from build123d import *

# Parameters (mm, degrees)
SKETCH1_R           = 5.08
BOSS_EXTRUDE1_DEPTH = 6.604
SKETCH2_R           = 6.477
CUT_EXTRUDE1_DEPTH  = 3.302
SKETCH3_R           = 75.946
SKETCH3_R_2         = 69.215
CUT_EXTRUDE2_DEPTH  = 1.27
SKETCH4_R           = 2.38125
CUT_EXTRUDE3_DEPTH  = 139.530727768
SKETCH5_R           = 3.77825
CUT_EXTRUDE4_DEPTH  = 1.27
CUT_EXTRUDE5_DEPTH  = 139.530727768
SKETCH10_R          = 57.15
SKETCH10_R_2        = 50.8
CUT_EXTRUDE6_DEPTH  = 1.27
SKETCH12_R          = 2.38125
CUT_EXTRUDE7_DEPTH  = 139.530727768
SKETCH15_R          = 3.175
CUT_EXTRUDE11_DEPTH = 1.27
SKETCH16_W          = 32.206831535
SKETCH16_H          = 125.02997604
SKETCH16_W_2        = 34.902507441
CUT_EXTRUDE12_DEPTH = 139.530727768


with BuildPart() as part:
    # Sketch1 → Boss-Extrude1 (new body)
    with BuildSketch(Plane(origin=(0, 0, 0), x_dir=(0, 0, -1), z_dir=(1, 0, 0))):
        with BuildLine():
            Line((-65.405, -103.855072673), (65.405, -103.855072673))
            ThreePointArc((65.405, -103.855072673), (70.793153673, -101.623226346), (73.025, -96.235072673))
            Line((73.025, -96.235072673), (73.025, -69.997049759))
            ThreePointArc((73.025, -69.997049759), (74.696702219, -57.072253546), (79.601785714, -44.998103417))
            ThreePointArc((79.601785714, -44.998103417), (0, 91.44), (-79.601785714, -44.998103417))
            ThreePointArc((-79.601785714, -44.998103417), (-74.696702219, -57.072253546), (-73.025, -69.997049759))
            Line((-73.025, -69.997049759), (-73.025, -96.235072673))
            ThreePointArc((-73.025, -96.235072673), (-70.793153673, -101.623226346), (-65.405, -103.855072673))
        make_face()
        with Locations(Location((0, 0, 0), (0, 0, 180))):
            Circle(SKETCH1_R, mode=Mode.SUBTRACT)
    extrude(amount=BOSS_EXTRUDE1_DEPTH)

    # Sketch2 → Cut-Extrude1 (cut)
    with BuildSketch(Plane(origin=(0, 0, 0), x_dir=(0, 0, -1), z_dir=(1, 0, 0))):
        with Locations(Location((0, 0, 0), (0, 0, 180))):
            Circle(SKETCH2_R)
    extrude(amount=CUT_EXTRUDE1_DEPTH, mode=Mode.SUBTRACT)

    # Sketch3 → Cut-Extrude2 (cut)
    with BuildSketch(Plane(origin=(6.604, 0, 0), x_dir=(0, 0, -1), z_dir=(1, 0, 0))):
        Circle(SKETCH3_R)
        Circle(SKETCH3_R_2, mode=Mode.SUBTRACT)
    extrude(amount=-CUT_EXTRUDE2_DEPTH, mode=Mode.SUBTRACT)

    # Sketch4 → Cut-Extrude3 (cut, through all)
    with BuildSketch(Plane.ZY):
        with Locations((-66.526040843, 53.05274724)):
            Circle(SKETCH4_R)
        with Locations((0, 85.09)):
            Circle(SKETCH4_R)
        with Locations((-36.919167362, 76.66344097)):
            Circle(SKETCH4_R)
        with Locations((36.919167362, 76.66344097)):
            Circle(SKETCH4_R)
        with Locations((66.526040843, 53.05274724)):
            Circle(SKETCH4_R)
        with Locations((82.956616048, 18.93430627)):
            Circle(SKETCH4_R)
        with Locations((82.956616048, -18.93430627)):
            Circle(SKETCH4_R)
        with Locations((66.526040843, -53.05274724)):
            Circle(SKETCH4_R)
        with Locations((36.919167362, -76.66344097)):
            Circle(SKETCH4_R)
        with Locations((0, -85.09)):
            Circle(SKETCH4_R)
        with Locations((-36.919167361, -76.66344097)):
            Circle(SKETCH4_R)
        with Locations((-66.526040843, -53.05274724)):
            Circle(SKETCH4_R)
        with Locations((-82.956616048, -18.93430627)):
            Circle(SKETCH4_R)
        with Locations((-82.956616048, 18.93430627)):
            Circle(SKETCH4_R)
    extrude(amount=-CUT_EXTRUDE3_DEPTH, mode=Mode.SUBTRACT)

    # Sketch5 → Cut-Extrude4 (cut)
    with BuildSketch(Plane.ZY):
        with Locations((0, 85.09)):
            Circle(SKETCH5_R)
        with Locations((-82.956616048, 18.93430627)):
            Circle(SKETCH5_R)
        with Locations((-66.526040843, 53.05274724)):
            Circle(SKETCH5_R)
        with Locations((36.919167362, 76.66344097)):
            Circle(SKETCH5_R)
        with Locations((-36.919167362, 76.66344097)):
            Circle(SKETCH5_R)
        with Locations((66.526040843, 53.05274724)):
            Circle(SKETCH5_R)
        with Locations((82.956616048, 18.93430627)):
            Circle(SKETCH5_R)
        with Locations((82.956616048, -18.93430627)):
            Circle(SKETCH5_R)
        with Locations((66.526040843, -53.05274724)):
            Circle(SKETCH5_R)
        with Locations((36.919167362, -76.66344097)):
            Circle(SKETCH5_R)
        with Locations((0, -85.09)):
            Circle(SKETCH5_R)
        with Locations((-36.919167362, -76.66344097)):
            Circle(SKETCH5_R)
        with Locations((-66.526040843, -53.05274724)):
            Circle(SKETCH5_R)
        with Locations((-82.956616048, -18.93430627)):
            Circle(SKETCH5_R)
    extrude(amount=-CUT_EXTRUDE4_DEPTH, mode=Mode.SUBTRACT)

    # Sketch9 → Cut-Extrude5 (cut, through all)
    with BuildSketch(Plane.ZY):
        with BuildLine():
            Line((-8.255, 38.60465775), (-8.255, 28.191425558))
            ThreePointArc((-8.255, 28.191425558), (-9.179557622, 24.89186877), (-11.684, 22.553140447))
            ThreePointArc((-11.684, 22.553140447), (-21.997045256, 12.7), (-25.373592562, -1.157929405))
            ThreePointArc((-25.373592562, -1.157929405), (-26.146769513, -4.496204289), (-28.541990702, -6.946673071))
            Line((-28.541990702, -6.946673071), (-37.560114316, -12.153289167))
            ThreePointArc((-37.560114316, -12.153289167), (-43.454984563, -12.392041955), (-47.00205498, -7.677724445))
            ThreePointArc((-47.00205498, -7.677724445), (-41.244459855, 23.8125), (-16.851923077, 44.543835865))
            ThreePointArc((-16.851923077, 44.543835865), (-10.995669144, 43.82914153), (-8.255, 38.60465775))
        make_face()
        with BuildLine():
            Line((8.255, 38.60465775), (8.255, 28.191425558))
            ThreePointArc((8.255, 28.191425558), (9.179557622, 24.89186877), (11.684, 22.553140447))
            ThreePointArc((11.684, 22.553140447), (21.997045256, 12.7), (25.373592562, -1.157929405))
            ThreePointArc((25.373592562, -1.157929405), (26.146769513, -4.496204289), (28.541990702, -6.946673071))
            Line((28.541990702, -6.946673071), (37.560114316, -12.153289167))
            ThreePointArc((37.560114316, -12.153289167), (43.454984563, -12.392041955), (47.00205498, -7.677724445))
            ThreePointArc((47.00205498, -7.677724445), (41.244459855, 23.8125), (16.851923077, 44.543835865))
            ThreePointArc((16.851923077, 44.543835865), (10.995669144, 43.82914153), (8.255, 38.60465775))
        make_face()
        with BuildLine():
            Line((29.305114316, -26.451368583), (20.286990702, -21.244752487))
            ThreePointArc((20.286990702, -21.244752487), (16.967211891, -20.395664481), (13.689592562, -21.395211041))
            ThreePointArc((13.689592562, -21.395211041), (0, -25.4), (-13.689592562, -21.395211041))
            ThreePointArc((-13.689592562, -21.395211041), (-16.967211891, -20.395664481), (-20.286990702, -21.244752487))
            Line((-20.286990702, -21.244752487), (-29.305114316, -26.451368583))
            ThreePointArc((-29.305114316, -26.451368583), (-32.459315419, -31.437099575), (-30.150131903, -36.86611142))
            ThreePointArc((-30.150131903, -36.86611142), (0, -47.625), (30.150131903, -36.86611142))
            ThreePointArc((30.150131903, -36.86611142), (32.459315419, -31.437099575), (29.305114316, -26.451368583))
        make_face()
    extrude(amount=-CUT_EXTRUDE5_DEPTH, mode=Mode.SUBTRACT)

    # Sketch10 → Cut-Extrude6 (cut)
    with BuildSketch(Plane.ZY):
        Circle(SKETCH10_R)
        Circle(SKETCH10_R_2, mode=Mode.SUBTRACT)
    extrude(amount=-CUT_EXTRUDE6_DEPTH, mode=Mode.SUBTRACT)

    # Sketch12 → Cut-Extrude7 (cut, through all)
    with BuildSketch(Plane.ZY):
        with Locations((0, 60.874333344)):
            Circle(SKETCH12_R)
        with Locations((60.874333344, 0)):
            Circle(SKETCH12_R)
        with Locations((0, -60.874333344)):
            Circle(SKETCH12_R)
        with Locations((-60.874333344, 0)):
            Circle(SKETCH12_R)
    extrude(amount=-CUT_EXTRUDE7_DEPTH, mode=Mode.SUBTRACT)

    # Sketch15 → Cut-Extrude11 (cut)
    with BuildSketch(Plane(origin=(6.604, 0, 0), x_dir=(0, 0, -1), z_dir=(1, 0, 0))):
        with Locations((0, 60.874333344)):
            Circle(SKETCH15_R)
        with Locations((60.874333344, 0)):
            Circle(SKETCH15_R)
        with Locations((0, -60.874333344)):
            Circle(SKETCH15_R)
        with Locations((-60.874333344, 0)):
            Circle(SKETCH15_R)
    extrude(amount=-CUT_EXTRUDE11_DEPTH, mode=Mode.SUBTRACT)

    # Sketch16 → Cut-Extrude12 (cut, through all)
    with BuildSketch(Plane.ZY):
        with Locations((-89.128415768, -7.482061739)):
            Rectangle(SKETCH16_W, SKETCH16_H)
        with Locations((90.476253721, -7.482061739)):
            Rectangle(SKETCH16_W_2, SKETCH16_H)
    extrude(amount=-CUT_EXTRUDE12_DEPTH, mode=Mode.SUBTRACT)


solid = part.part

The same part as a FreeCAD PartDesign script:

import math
import FreeCAD as App
import Part
import Sketcher
from FreeCAD import Vector
Q = App.Units.Quantity


def add_polygon(sketch, points):
    """Adds a closed chain of lines whose ends are joined by coincident constraints."""
    first, n = sketch.GeometryCount, len(points)
    for a, b in zip(points, points[1:] + points[:1]):
        sketch.addGeometry(Part.LineSegment(App.Vector(*a, 0), App.Vector(*b, 0)), False)
    for i in range(n):
        sketch.addConstraint(Sketcher.Constraint("Coincident", first + i, 2, first + (i + 1) % n, 1))

doc = App.newDocument("Part")
params = doc.addObject("Spreadsheet::Sheet", "Params")
for row, (alias, value) in enumerate([
    ("sketch1_radius", "2 in"),
    ("sketch1_diameter", "0.4 in"),
    ("sketch1_radius2", "0.3 in"),
    ("sketch1_radius3", "3.6 in"),
    ("sketch1_height", "5.15 in"),
    ("pad1_length", "0.26 in"),
    ("sketch2_diameter", "0.51 in"),
    ("pocket1_length", "0.13 in"),
    ("sketch3_diameter", "5.98 in"),
    ("sketch3_diameter2", "5.45 in"),
    ("pocket2_length", "0.05 in"),
    ("sketch4_diameter", "0.1875 in"),
    ("pocket4_length", "0.05 in"),
    ("sketch6_radius", "1 in"),
    ("sketch6_radius2", "0.25 in"),
    ("sketch6_radius3", "1.875 in"),
    ("sketch7_diameter", "4 in"),
    ("sketch7_diameter2", "4.5 in"),
    ("pocket6_length", "0.05 in"),
    ("sketch8_diameter", "0.1875 in"),
    ("sketch9_diameter", "0.25 in"),
    ("pocket8_length", "0.05 in"),
], start=1):
    params.set(f"A{row}", alias)
    params.set(f"B{row}", "=" + value)
    params.setAlias(f"B{row}", alias)

body = doc.addObject("PartDesign::Body", "Body")

sketch1 = body.newObject("Sketcher::SketchObject", "Sketch")
sketch1.AttachmentSupport = (doc.getObject("YZ_Plane"), [""])
sketch1.MapMode = "FlatFace"
sketch1.addGeometry([
    Part.LineSegment(Vector(-103.855073, 65.405, 0), Vector(-103.855073, -65.405, 0)),
    Part.ArcOfCircle(Part.Circle(Vector(-96.235073, -65.405, 0), Vector(0, 0, 1), 7.62), math.radians(180), math.radians(270)),
    Part.LineSegment(Vector(-96.235073, -73.025, 0), Vector(-69.99705, -73.025, 0)),
    Part.ArcOfCircle(Part.Circle(Vector(-69.99705, -123.825, 0), Vector(0, 0, 1), 50.8), math.radians(60.520953), math.radians(90)),
    Part.ArcOfCircle(Part.Circle(Vector(0, 0, 0), Vector(0, 0, 1), 91.44), math.radians(-119.479047), math.radians(119.479047)),
    Part.ArcOfCircle(Part.Circle(Vector(-69.99705, 123.825, 0), Vector(0, 0, 1), 50.8), math.radians(-90), math.radians(-60.520953)),
    Part.LineSegment(Vector(-69.99705, 73.025, 0), Vector(-96.235073, 73.025, 0)),
    Part.ArcOfCircle(Part.Circle(Vector(-96.235073, 65.405, 0), Vector(0, 0, 1), 7.62), math.radians(90), math.radians(180)),
    Part.Circle(Vector(0, 0, 0), Vector(0, 0, 1), 5.08),
], False)
sketch1.addConstraint([
    Sketcher.Constraint("Tangent", 0, 2, 1, 1),
    Sketcher.Constraint("Tangent", 1, 2, 2, 1),
    Sketcher.Constraint("Tangent", 2, 2, 3, 2),
    Sketcher.Constraint("Tangent", 3, 1, 4, 1),
    Sketcher.Constraint("Tangent", 4, 2, 5, 2),
    Sketcher.Constraint("Tangent", 5, 1, 6, 1),
    Sketcher.Constraint("Tangent", 6, 2, 7, 1),
    Sketcher.Constraint("Tangent", 7, 2, 0, 1),
    Sketcher.Constraint("Vertical", 0),
    Sketcher.Constraint("Horizontal", 2),
    Sketcher.Constraint("Horizontal", 6),
    Sketcher.Constraint("Coincident", 4, 3, -1, 1),
    Sketcher.Constraint("Coincident", 8, 3, -1, 1),
    Sketcher.Constraint("Equal", 3, 5),
    Sketcher.Constraint("Equal", 1, 7),
    Sketcher.Constraint("Vertical", 3, 3, 5, 3),
    Sketcher.Constraint("Radius", 3, Q("2 in")),
    Sketcher.Constraint("Diameter", 8, Q("0.4 in")),
    Sketcher.Constraint("Radius", 1, Q("0.3 in")),
    Sketcher.Constraint("Radius", 4, Q("3.6 in")),
    Sketcher.Constraint("DistanceY", 0, 2, 0, 1, Q("5.15 in")),
    Sketcher.Constraint("DistanceX", 2, 1, 2, 2, Q("26.238023 mm")),
])
sketch1.setExpression("Constraints[16]", "Params.sketch1_radius")
sketch1.setExpression("Constraints[17]", "Params.sketch1_diameter")
sketch1.setExpression("Constraints[18]", "Params.sketch1_radius2")
sketch1.setExpression("Constraints[19]", "Params.sketch1_radius3")
sketch1.setExpression("Constraints[20]", "Params.sketch1_height")
pad1 = body.newObject("PartDesign::Pad", "Pad")
pad1.Profile = sketch1
pad1.setExpression("Length", "Params.pad1_length")

sketch2 = body.newObject("Sketcher::SketchObject", "Sketch001")
sketch2.AttachmentSupport = (doc.getObject("YZ_Plane"), [""])
sketch2.MapMode = "FlatFace"
sketch2.addGeometry(Part.Circle(Vector(0, 0, 0), Vector(0, 0, 1), 6.477), False)
sketch2.addConstraint([
    Sketcher.Constraint("Coincident", 0, 3, -1, 1),
    Sketcher.Constraint("Diameter", 0, Q("0.51 in")),
])
sketch2.setExpression("Constraints[1]", "Params.sketch2_diameter")
pocket1 = body.newObject("PartDesign::Pocket", "Pocket")
pocket1.Profile = sketch2
pocket1.setExpression("Length", "Params.pocket1_length")
pocket1.Reversed = True

sketch3 = body.newObject("Sketcher::SketchObject", "Sketch002")
sketch3.AttachmentSupport = (doc.getObject("YZ_Plane"), [""])
sketch3.MapMode = "FlatFace"
sketch3.AttachmentOffset = App.Placement(Vector(0, 0, 0.26 * 25.4), App.Rotation())
sketch3.addGeometry([
    Part.Circle(Vector(0, 0, 0), Vector(0, 0, 1), 75.946),
    Part.Circle(Vector(0, 0, 0), Vector(0, 0, 1), 69.215),
], False)
sketch3.addConstraint([
    Sketcher.Constraint("Coincident", 0, 3, -1, 1),
    Sketcher.Constraint("Coincident", 1, 3, -1, 1),
    Sketcher.Constraint("Diameter", 0, Q("5.98 in")),
    Sketcher.Constraint("Diameter", 1, Q("5.45 in")),
])
sketch3.setExpression("Constraints[2]", "Params.sketch3_diameter")
sketch3.setExpression("Constraints[3]", "Params.sketch3_diameter2")
pocket2 = body.newObject("PartDesign::Pocket", "Pocket001")
pocket2.Profile = sketch3
pocket2.setExpression("Length", "Params.pocket2_length")

sketch4 = body.newObject("Sketcher::SketchObject", "Sketch003")
sketch4.AttachmentSupport = (doc.getObject("YZ_Plane"), [""])
sketch4.MapMode = "FlatFace"
sketch4.addGeometry([
    Part.Circle(Vector(53.052747, -66.526041, 0), Vector(0, 0, 1), 2.38125),
    Part.Circle(Vector(85.09, 0, 0), Vector(0, 0, 1), 2.38125),
    Part.Circle(Vector(76.663441, -36.919167, 0), Vector(0, 0, 1), 2.38125),
    Part.Circle(Vector(76.663441, 36.919167, 0), Vector(0, 0, 1), 2.38125),
    Part.Circle(Vector(53.052747, 66.526041, 0), Vector(0, 0, 1), 2.38125),
    Part.Circle(Vector(18.934306, 82.956616, 0), Vector(0, 0, 1), 2.38125),
    Part.Circle(Vector(-18.934306, 82.956616, 0), Vector(0, 0, 1), 2.38125),
    Part.Circle(Vector(-53.052747, 66.526041, 0), Vector(0, 0, 1), 2.38125),
    Part.Circle(Vector(-76.663441, 36.919167, 0), Vector(0, 0, 1), 2.38125),
    Part.Circle(Vector(-85.09, 0, 0), Vector(0, 0, 1), 2.38125),
    Part.Circle(Vector(-76.663441, -36.919167, 0), Vector(0, 0, 1), 2.38125),
    Part.Circle(Vector(-53.052747, -66.526041, 0), Vector(0, 0, 1), 2.38125),
    Part.Circle(Vector(-18.934306, -82.956616, 0), Vector(0, 0, 1), 2.38125),
    Part.Circle(Vector(18.934306, -82.956616, 0), Vector(0, 0, 1), 2.38125),
], False)
sketch4.addConstraint([
    Sketcher.Constraint("Equal", 0, 1),
    Sketcher.Constraint("Equal", 1, 2),
    Sketcher.Constraint("Equal", 2, 3),
    Sketcher.Constraint("Equal", 3, 4),
    Sketcher.Constraint("Equal", 4, 5),
    Sketcher.Constraint("Equal", 5, 6),
    Sketcher.Constraint("Equal", 6, 7),
    Sketcher.Constraint("Equal", 7, 8),
    Sketcher.Constraint("Equal", 8, 9),
    Sketcher.Constraint("Equal", 9, 10),
    Sketcher.Constraint("Equal", 10, 11),
    Sketcher.Constraint("Equal", 11, 12),
    Sketcher.Constraint("Equal", 12, 13),
    Sketcher.Constraint("Symmetric", 0, 3, 7, 3, -1, 1),
    Sketcher.Constraint("Symmetric", 2, 3, 8, 3, -1, 1),
    Sketcher.Constraint("Symmetric", 1, 3, 9, 3, -1, 1),
    Sketcher.Constraint("Symmetric", 3, 3, 10, 3, -1, 1),
    Sketcher.Constraint("Symmetric", 4, 3, 11, 3, -1, 1),
    Sketcher.Constraint("Symmetric", 5, 3, 12, 3, -1, 1),
    Sketcher.Constraint("Symmetric", 6, 3, 13, 3, -1, 1),
    Sketcher.Constraint("Symmetric", 5, 3, 6, 3, -2),
    Sketcher.Constraint("Symmetric", 4, 3, 7, 3, -2),
    Sketcher.Constraint("Symmetric", 3, 3, 8, 3, -2),
    Sketcher.Constraint("PointOnObject", 1, 3, -1),
    Sketcher.Constraint("Diameter", 0, Q("0.1875 in")),
    Sketcher.Constraint("DistanceX", -1, 1, 1, 3, Q("3.35 in")),
    Sketcher.Constraint("DistanceY", 0, 3, -1, 1, Q("66.526041 mm")),
    Sketcher.Constraint("DistanceX", -1, 1, 2, 3, Q("76.663441 mm")),
    Sketcher.Constraint("DistanceY", 0, 3, 3, 3, Q("103.445208 mm")),
    Sketcher.Constraint("DistanceX", 5, 3, 4, 3, Q("34.118441 mm")),
    Sketcher.Constraint("DistanceY", 3, 3, 5, 3, Q("46.037449 mm")),
    Sketcher.Constraint("DistanceX", 7, 3, 3, 3, Q("129.716188 mm")),
])
sketch4.setExpression("Constraints[24]", "Params.sketch4_diameter")
pocket3 = body.newObject("PartDesign::Pocket", "Pocket002")
pocket3.Profile = sketch4
pocket3.Type = "ThroughAll"
pocket3.Reversed = True

sketch5 = body.newObject("Sketcher::SketchObject", "Sketch004")
sketch5.AttachmentSupport = (doc.getObject("YZ_Plane"), [""])
sketch5.MapMode = "FlatFace"
sketch5.addGeometry([
    Part.Circle(Vector(85.09, 0, 0), Vector(0, 0, 1), 3.77825),
    Part.Circle(Vector(18.934306, -82.956616, 0), Vector(0, 0, 1), 3.77825),
    Part.Circle(Vector(53.052747, -66.526041, 0), Vector(0, 0, 1), 3.77825),
    Part.Circle(Vector(76.663441, 36.919167, 0), Vector(0, 0, 1), 3.77825),
    Part.Circle(Vector(76.663441, -36.919167, 0), Vector(0, 0, 1), 3.77825),
    Part.Circle(Vector(53.052747, 66.526041, 0), Vector(0, 0, 1), 3.77825),
    Part.Circle(Vector(18.934306, 82.956616, 0), Vector(0, 0, 1), 3.77825),
    Part.Circle(Vector(-18.934306, 82.956616, 0), Vector(0, 0, 1), 3.77825),
    Part.Circle(Vector(-53.052747, 66.526041, 0), Vector(0, 0, 1), 3.77825),
    Part.Circle(Vector(-76.663441, 36.919167, 0), Vector(0, 0, 1), 3.77825),
    Part.Circle(Vector(-85.09, 0, 0), Vector(0, 0, 1), 3.77825),
    Part.Circle(Vector(-76.663441, -36.919167, 0), Vector(0, 0, 1), 3.77825),
    Part.Circle(Vector(-53.052747, -66.526041, 0), Vector(0, 0, 1), 3.77825),
    Part.Circle(Vector(-18.934306, -82.956616, 0), Vector(0, 0, 1), 3.77825),
], False)
sketch5.addConstraint([
    Sketcher.Constraint("Equal", 0, 1),
    Sketcher.Constraint("Equal", 1, 2),
    Sketcher.Constraint("Equal", 2, 3),
    Sketcher.Constraint("Equal", 3, 4),
    Sketcher.Constraint("Equal", 4, 5),
    Sketcher.Constraint("Equal", 5, 6),
    Sketcher.Constraint("Equal", 6, 7),
    Sketcher.Constraint("Equal", 7, 8),
    Sketcher.Constraint("Equal", 8, 9),
    Sketcher.Constraint("Equal", 9, 10),
    Sketcher.Constraint("Equal", 10, 11),
    Sketcher.Constraint("Equal", 11, 12),
    Sketcher.Constraint("Equal", 12, 13),
    Sketcher.Constraint("Symmetric", 1, 3, 7, 3, -1, 1),
    Sketcher.Constraint("Symmetric", 2, 3, 8, 3, -1, 1),
    Sketcher.Constraint("Symmetric", 4, 3, 9, 3, -1, 1),
    Sketcher.Constraint("Symmetric", 0, 3, 10, 3, -1, 1),
    Sketcher.Constraint("Symmetric", 3, 3, 11, 3, -1, 1),
    Sketcher.Constraint("Symmetric", 5, 3, 12, 3, -1, 1),
    Sketcher.Constraint("Symmetric", 6, 3, 13, 3, -1, 1),
    Sketcher.Constraint("Symmetric", 6, 3, 7, 3, -2),
    Sketcher.Constraint("Symmetric", 5, 3, 8, 3, -2),
    Sketcher.Constraint("Symmetric", 3, 3, 9, 3, -2),
    Sketcher.Constraint("PointOnObject", 0, 3, -1),
    Sketcher.Constraint("Diameter", 0, Q("0.2975 in")),
    Sketcher.Constraint("DistanceX", -1, 1, 0, 3, Q("3.35 in")),
    Sketcher.Constraint("DistanceY", 2, 3, -1, 1, Q("66.526041 mm")),
    Sketcher.Constraint("DistanceX", -1, 1, 3, 3, Q("76.663441 mm")),
    Sketcher.Constraint("DistanceX", 1, 3, 2, 3, Q("34.118441 mm")),
    Sketcher.Constraint("DistanceY", 2, 3, 3, 3, Q("103.445208 mm")),
    Sketcher.Constraint("DistanceY", 1, 3, 4, 3, Q("46.037449 mm")),
    Sketcher.Constraint("DistanceX", 8, 3, 3, 3, Q("129.716188 mm")),
])
pocket4 = body.newObject("PartDesign::Pocket", "Pocket003")
pocket4.Profile = sketch5
pocket4.setExpression("Length", "Params.pocket4_length")
pocket4.Reversed = True

sketch6 = body.newObject("Sketcher::SketchObject", "Sketch005")
sketch6.AttachmentSupport = (doc.getObject("YZ_Plane"), [""])
sketch6.MapMode = "FlatFace"
sketch6.addGeometry([
    Part.LineSegment(Vector(28.191426, -8.255, 0), Vector(38.604658, -8.255, 0)),
    Part.ArcOfCircle(Part.Circle(Vector(38.604658, -14.605, 0), Vector(0, 0, 1), 6.35), math.radians(-20.722744), math.radians(90)),
    Part.ArcOfCircle(Part.Circle(Vector(0, 0, 0), Vector(0, 0, 1), 47.625), math.radians(-99.277256), math.radians(-20.722744)),
    Part.ArcOfCircle(Part.Circle(Vector(-6.654028, -40.735114, 0), Vector(0, 0, 1), 6.35), math.radians(150), math.radians(260.722744)),
    Part.LineSegment(Vector(-12.153289, -37.560114, 0), Vector(-6.946673, -28.541991, 0)),
    Part.ArcOfCircle(Part.Circle(Vector(-1.447412, -31.716991, 0), Vector(0, 0, 1), 6.35), math.radians(87.387107), math.radians(150)),
    Part.ArcOfCircle(Part.Circle(Vector(0, 0, 0), Vector(0, 0, 1), 25.4), math.radians(-92.612892), math.radians(-27.387108)),
    Part.ArcOfCircle(Part.Circle(Vector(28.191426, -14.605, 0), Vector(0, 0, 1), 6.35), math.radians(90), math.radians(152.612892)),
    Part.LineSegment(Vector(38.604658, 8.255, 0), Vector(28.191426, 8.255, 0)),
    Part.ArcOfCircle(Part.Circle(Vector(28.191426, 14.605, 0), Vector(0, 0, 1), 6.35), math.radians(-152.612892), math.radians(-90)),
    Part.ArcOfCircle(Part.Circle(Vector(0, 0, 0), Vector(0, 0, 1), 25.4), math.radians(27.387108), math.radians(92.612892)),
    Part.ArcOfCircle(Part.Circle(Vector(-1.447412, 31.716991, 0), Vector(0, 0, 1), 6.35), math.radians(-150), math.radians(-87.387107)),
    Part.LineSegment(Vector(-6.946673, 28.541991, 0), Vector(-12.153289, 37.560114, 0)),
    Part.ArcOfCircle(Part.Circle(Vector(-6.654028, 40.735114, 0), Vector(0, 0, 1), 6.35), math.radians(99.277256), math.radians(210)),
    Part.ArcOfCircle(Part.Circle(Vector(0, 0, 0), Vector(0, 0, 1), 47.625), math.radians(20.722744), math.radians(99.277256)),
    Part.ArcOfCircle(Part.Circle(Vector(38.604658, 14.605, 0), Vector(0, 0, 1), 6.35), math.radians(-90), math.radians(20.722744)),
    Part.LineSegment(Vector(-26.451369, 29.305114, 0), Vector(-21.244752, 20.286991, 0)),
    Part.ArcOfCircle(Part.Circle(Vector(-26.744014, 17.111991, 0), Vector(0, 0, 1), 6.35), math.radians(-32.612892), math.radians(30)),
    Part.ArcOfCircle(Part.Circle(Vector(0, 0, 0), Vector(0, 0, 1), 25.4), math.radians(147.387108), math.radians(212.612892)),
    Part.ArcOfCircle(Part.Circle(Vector(-26.744014, -17.111991, 0), Vector(0, 0, 1), 6.35), math.radians(-30), math.radians(32.612892)),
    Part.LineSegment(Vector(-21.244752, -20.286991, 0), Vector(-26.451369, -29.305114, 0)),
    Part.ArcOfCircle(Part.Circle(Vector(-31.95063, -26.130114, 0), Vector(0, 0, 1), 6.35), math.radians(-140.722744), math.radians(-30)),
    Part.ArcOfCircle(Part.Circle(Vector(0, 0, 0), Vector(0, 0, 1), 47.625), math.radians(140.722744), math.radians(219.277256)),
    Part.ArcOfCircle(Part.Circle(Vector(-31.95063, 26.130114, 0), Vector(0, 0, 1), 6.35), math.radians(30), math.radians(140.722744)),
], False)
sketch6.addConstraint([
    Sketcher.Constraint("Tangent", 0, 2, 1, 2),
    Sketcher.Constraint("Tangent", 1, 1, 2, 2),
    Sketcher.Constraint("Tangent", 2, 1, 3, 2),
    Sketcher.Constraint("Tangent", 3, 1, 4, 1),
    Sketcher.Constraint("Tangent", 4, 2, 5, 2),
    Sketcher.Constraint("Tangent", 5, 1, 6, 1),
    Sketcher.Constraint("Tangent", 6, 2, 7, 2),
    Sketcher.Constraint("Tangent", 7, 1, 0, 1),
    Sketcher.Constraint("Tangent", 8, 2, 9, 2),
    Sketcher.Constraint("Tangent", 9, 1, 10, 1),
    Sketcher.Constraint("Tangent", 10, 2, 11, 2),
    Sketcher.Constraint("Tangent", 11, 1, 12, 1),
    Sketcher.Constraint("Tangent", 12, 2, 13, 2),
    Sketcher.Constraint("Tangent", 13, 1, 14, 2),
    Sketcher.Constraint("Tangent", 14, 1, 15, 2),
    Sketcher.Constraint("Tangent", 15, 1, 8, 1),
    Sketcher.Constraint("Tangent", 16, 2, 17, 2),
    Sketcher.Constraint("Tangent", 17, 1, 18, 1),
    Sketcher.Constraint("Tangent", 18, 2, 19, 2),
    Sketcher.Constraint("Tangent", 19, 1, 20, 1),
    Sketcher.Constraint("Tangent", 20, 2, 21, 2),
    Sketcher.Constraint("Tangent", 21, 1, 22, 2),
    Sketcher.Constraint("Tangent", 22, 1, 23, 2),
    Sketcher.Constraint("Tangent", 23, 1, 16, 1),
    Sketcher.Constraint("Horizontal", 0),
    Sketcher.Constraint("Horizontal", 8),
    Sketcher.Constraint("Coincident", 2, 3, -1, 1),
    Sketcher.Constraint("Coincident", 6, 3, -1, 1),
    Sketcher.Constraint("Coincident", 10, 3, -1, 1),
    Sketcher.Constraint("Coincident", 14, 3, -1, 1),
    Sketcher.Constraint("Coincident", 18, 3, -1, 1),
    Sketcher.Constraint("Coincident", 22, 3, -1, 1),
    Sketcher.Constraint("Equal", 1, 3),
    Sketcher.Constraint("Equal", 3, 5),
    Sketcher.Constraint("Equal", 5, 7),
    Sketcher.Constraint("Equal", 7, 9),
    Sketcher.Constraint("Equal", 6, 10),
    Sketcher.Constraint("Equal", 9, 11),
    Sketcher.Constraint("Equal", 11, 13),
    Sketcher.Constraint("Equal", 2, 14),
    Sketcher.Constraint("Equal", 13, 15),
    Sketcher.Constraint("Equal", 15, 17),
    Sketcher.Constraint("Equal", 10, 18),
    Sketcher.Constraint("Equal", 17, 19),
    Sketcher.Constraint("Equal", 19, 21),
    Sketcher.Constraint("Equal", 14, 22),
    Sketcher.Constraint("Equal", 21, 23),
    Sketcher.Constraint("Symmetric", 4, 2, 11, 1, -1),
    Sketcher.Constraint("Symmetric", 16, 2, 19, 1, -1),
    Sketcher.Constraint("Parallel", 12, 16),
    Sketcher.Constraint("Vertical", 7, 3, 9, 3),
    Sketcher.Constraint("Equal", 12, 16),
    Sketcher.Constraint("Radius", 6, Q("1 in")),
    Sketcher.Constraint("Radius", 1, Q("0.25 in")),
    Sketcher.Constraint("Angle", 4, Q("60 deg")),
    Sketcher.Constraint("Radius", 2, Q("1.875 in")),
    Sketcher.Constraint("DistanceY", 0, 2, 15, 3, Q("0.9 in")),
    Sketcher.Constraint("DistanceY", 3, 1, 21, 3, Q("0.45 in")),
])
sketch6.setExpression("Constraints[52]", "Params.sketch6_radius")
sketch6.setExpression("Constraints[53]", "Params.sketch6_radius2")
sketch6.setExpression("Constraints[55]", "Params.sketch6_radius3")
pocket5 = body.newObject("PartDesign::Pocket", "Pocket004")
pocket5.Profile = sketch6
pocket5.Type = "ThroughAll"
pocket5.Reversed = True

sketch7 = body.newObject("Sketcher::SketchObject", "Sketch006")
sketch7.AttachmentSupport = (doc.getObject("YZ_Plane"), [""])
sketch7.MapMode = "FlatFace"
sketch7.addGeometry([
    Part.Circle(Vector(0, 0, 0), Vector(0, 0, 1), 57.15),
    Part.Circle(Vector(0, 0, 0), Vector(0, 0, 1), 50.8),
], False)
sketch7.addConstraint([
    Sketcher.Constraint("Coincident", 0, 3, -1, 1),
    Sketcher.Constraint("Coincident", 1, 3, -1, 1),
    Sketcher.Constraint("Diameter", 1, Q("4 in")),
    Sketcher.Constraint("Diameter", 0, Q("4.5 in")),
])
sketch7.setExpression("Constraints[2]", "Params.sketch7_diameter")
sketch7.setExpression("Constraints[3]", "Params.sketch7_diameter2")
pocket6 = body.newObject("PartDesign::Pocket", "Pocket005")
pocket6.Profile = sketch7
pocket6.setExpression("Length", "Params.pocket6_length")
pocket6.Reversed = True

sketch8 = body.newObject("Sketcher::SketchObject", "Sketch007")
sketch8.AttachmentSupport = (doc.getObject("YZ_Plane"), [""])
sketch8.MapMode = "FlatFace"
sketch8.addGeometry([
    Part.Circle(Vector(60.874333, 0, 0), Vector(0, 0, 1), 2.38125),
    Part.Circle(Vector(0, 60.874333, 0), Vector(0, 0, 1), 2.38125),
    Part.Circle(Vector(-60.874333, 0, 0), Vector(0, 0, 1), 2.38125),
    Part.Circle(Vector(0, -60.874333, 0), Vector(0, 0, 1), 2.38125),
], False)
sketch8.addConstraint([
    Sketcher.Constraint("Equal", 0, 1),
    Sketcher.Constraint("Equal", 1, 2),
    Sketcher.Constraint("Equal", 2, 3),
    Sketcher.Constraint("Symmetric", 0, 3, 2, 3, -1, 1),
    Sketcher.Constraint("Symmetric", 1, 3, 3, 3, -1, 1),
    Sketcher.Constraint("PointOnObject", 0, 3, -1),
    Sketcher.Constraint("PointOnObject", 1, 3, -2),
    Sketcher.Constraint("Diameter", 0, Q("0.1875 in")),
    Sketcher.Constraint("DistanceX", -1, 1, 0, 3, Q("60.874333 mm")),
    Sketcher.Constraint("DistanceY", -1, 1, 1, 3, Q("60.874333 mm")),
])
sketch8.setExpression("Constraints[7]", "Params.sketch8_diameter")
pocket7 = body.newObject("PartDesign::Pocket", "Pocket006")
pocket7.Profile = sketch8
pocket7.Type = "ThroughAll"
pocket7.Reversed = True

sketch9 = body.newObject("Sketcher::SketchObject", "Sketch008")
sketch9.AttachmentSupport = (doc.getObject("YZ_Plane"), [""])
sketch9.MapMode = "FlatFace"
sketch9.AttachmentOffset = App.Placement(Vector(0, 0, 0.26 * 25.4), App.Rotation())
sketch9.addGeometry([
    Part.Circle(Vector(60.874333, 0, 0), Vector(0, 0, 1), 3.175),
    Part.Circle(Vector(0, -60.874333, 0), Vector(0, 0, 1), 3.175),
    Part.Circle(Vector(-60.874333, 0, 0), Vector(0, 0, 1), 3.175),
    Part.Circle(Vector(0, 60.874333, 0), Vector(0, 0, 1), 3.175),
], False)
sketch9.addConstraint([
    Sketcher.Constraint("Equal", 0, 1),
    Sketcher.Constraint("Equal", 1, 2),
    Sketcher.Constraint("Equal", 2, 3),
    Sketcher.Constraint("Symmetric", 0, 3, 2, 3, -1, 1),
    Sketcher.Constraint("Symmetric", 1, 3, 3, 3, -1, 1),
    Sketcher.Constraint("PointOnObject", 0, 3, -1),
    Sketcher.Constraint("PointOnObject", 1, 3, -2),
    Sketcher.Constraint("Diameter", 0, Q("0.25 in")),
    Sketcher.Constraint("DistanceX", -1, 1, 0, 3, Q("60.874333 mm")),
    Sketcher.Constraint("DistanceY", 1, 3, -1, 1, Q("60.874333 mm")),
])
sketch9.setExpression("Constraints[7]", "Params.sketch9_diameter")
pocket8 = body.newObject("PartDesign::Pocket", "Pocket007")
pocket8.Profile = sketch9
pocket8.setExpression("Length", "Params.pocket8_length")

sketch10 = body.newObject("Sketcher::SketchObject", "Sketch009")
sketch10.AttachmentSupport = (doc.getObject("YZ_Plane"), [""])
sketch10.MapMode = "FlatFace"
add_polygon(sketch10, [(55.032926, -105.231832), (-69.99705, -105.231832), (-69.99705, -73.025), (55.032926, -73.025)])
add_polygon(sketch10, [(55.032926, 73.025), (-69.99705, 73.025), (-69.99705, 107.927507), (55.032926, 107.927507)])
sketch10.addConstraint([
    Sketcher.Constraint("Horizontal", 0),
    Sketcher.Constraint("Vertical", 1),
    Sketcher.Constraint("Horizontal", 2),
    Sketcher.Constraint("Vertical", 3),
    Sketcher.Constraint("Horizontal", 4),
    Sketcher.Constraint("Vertical", 5),
    Sketcher.Constraint("Horizontal", 6),
    Sketcher.Constraint("Vertical", 7),
    Sketcher.Constraint("Symmetric", 1, 2, 4, 2, -1),
    Sketcher.Constraint("Vertical", 3, 2, 6, 2),
    Sketcher.Constraint("DistanceY", 1, 2, 4, 2, Q("5.75 in")),
    Sketcher.Constraint("DistanceY", 0, 2, 5, 2, Q("8.3921 in")),
    Sketcher.Constraint("DistanceY", 1, 1, 1, 2, Q("32.206832 mm")),
    Sketcher.Constraint("DistanceX", 0, 2, 0, 1, Q("125.029976 mm")),
    Sketcher.Constraint("DistanceX", 0, 2, -1, 1, Q("69.99705 mm")),
])
pocket9 = body.newObject("PartDesign::Pocket", "Pocket008")
pocket9.Profile = sketch10
pocket9.Type = "ThroughAll"
pocket9.Reversed = True

doc.recompute()
